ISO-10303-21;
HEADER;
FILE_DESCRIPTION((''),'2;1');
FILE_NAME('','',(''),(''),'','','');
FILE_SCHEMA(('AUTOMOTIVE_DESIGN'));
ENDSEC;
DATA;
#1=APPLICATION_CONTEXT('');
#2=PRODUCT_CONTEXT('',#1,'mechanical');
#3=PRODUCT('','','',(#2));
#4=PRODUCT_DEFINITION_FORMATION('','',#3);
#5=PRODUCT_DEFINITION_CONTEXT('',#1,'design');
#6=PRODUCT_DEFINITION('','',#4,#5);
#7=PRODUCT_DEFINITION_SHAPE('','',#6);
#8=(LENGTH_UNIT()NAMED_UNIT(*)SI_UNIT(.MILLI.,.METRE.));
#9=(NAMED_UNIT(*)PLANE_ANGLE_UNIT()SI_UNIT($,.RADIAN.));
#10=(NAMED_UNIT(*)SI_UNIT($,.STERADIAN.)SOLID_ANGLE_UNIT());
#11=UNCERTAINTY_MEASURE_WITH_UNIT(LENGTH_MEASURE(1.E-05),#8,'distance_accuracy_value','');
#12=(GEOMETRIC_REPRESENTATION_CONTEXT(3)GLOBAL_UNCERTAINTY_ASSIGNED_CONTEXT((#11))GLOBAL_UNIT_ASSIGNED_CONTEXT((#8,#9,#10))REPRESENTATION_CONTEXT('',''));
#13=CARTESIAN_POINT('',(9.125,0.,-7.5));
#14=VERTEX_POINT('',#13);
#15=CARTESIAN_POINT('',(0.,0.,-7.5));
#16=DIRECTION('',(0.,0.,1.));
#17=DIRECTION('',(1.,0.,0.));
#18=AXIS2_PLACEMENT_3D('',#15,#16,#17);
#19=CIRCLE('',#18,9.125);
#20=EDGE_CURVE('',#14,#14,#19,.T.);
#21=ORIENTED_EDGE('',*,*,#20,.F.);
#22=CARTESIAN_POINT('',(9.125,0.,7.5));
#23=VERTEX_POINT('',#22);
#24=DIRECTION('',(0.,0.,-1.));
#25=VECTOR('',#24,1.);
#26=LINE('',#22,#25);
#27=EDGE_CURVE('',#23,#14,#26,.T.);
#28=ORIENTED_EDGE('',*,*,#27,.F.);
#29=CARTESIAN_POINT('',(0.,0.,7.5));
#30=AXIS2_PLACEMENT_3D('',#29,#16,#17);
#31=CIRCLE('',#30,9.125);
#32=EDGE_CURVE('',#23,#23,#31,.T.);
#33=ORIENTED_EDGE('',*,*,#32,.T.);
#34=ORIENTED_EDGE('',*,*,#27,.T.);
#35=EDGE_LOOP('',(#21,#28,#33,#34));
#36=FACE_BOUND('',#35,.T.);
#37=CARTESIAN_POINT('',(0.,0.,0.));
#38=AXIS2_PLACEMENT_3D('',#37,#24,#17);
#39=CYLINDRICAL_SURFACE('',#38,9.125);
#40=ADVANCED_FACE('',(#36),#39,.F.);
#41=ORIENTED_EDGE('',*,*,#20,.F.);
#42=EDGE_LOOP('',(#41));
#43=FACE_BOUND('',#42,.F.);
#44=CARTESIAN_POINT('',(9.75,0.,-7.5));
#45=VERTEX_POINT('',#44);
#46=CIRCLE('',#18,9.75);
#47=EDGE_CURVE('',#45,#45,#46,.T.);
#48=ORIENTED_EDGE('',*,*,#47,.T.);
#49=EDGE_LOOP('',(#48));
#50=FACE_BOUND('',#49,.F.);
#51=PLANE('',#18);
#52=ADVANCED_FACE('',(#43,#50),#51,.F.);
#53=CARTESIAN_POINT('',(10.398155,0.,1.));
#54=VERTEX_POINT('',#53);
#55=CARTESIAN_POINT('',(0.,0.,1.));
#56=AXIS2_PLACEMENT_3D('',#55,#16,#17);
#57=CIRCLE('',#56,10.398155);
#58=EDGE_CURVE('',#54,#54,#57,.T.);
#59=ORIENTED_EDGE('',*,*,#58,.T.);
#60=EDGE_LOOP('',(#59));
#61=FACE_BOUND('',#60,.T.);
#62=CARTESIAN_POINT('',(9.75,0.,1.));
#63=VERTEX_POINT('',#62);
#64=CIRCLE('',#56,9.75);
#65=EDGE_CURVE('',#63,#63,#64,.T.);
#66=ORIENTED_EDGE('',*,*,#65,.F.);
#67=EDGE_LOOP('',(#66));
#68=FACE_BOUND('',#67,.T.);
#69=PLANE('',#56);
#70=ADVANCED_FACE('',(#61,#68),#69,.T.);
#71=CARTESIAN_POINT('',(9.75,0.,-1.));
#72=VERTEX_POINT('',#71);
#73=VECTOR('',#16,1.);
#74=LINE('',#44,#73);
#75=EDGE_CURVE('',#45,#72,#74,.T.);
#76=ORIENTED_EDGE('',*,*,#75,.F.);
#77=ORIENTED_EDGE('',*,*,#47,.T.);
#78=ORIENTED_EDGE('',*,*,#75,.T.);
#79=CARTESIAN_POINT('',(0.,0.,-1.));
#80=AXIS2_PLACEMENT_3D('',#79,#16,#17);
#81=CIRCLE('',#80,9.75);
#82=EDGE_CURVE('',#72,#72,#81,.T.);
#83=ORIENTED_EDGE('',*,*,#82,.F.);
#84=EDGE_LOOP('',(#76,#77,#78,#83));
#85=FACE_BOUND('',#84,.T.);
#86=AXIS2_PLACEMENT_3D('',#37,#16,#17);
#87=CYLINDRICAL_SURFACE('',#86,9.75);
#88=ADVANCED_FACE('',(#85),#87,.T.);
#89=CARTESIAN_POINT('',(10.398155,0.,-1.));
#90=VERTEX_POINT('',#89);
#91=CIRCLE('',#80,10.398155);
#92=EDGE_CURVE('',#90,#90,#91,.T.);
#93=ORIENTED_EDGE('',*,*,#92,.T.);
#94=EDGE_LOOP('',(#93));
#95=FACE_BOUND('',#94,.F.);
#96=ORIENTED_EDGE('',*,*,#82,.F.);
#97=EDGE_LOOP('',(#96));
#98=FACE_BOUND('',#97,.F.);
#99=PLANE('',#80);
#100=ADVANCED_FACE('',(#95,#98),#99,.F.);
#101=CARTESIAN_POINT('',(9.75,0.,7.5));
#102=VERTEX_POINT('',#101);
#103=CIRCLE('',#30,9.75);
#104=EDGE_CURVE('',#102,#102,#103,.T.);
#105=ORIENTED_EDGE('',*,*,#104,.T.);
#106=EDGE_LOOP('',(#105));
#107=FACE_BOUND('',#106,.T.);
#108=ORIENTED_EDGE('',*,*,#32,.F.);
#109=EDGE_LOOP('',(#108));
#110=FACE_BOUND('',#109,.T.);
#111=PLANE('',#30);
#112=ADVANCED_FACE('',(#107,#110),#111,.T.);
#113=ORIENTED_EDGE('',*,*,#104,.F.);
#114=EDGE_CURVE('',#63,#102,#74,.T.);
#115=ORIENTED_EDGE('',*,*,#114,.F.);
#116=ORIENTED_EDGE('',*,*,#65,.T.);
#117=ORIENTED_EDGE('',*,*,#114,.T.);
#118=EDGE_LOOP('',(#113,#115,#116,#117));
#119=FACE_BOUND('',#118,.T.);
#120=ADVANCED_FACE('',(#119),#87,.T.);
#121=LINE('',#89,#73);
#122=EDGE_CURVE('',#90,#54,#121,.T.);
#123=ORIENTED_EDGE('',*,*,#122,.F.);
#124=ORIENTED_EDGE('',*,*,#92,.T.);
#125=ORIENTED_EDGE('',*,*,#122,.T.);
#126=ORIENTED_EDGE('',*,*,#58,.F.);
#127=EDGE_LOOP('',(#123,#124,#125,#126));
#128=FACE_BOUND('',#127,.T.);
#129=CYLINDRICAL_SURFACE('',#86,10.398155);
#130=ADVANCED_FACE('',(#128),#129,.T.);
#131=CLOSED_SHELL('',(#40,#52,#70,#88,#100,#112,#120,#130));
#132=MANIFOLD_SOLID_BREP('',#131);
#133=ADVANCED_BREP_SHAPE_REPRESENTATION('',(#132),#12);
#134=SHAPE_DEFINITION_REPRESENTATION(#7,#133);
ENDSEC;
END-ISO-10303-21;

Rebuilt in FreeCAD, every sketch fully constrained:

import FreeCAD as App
import Part
import Sketcher
from FreeCAD import Vector

doc = App.newDocument("Part")
params = doc.addObject("Spreadsheet::Sheet", "Params")
for row, (alias, value) in enumerate([
    ("sketch1_diameter", "19.5 mm"),
    ("sketch1_diameter2", "18.25 mm"),
    ("pad1_length", "15 mm"),
    ("sketch2_diameter", "19.5 mm"),
    ("pad2_length", "2 mm"),
], start=1):
    params.set(f"A{row}", alias)
    params.set(f"B{row}", "=" + value)
    params.setAlias(f"B{row}", alias)

body = doc.addObject("PartDesign::Body", "Body")

# Sketch on XY plane
sketch1 = body.newObject("Sketcher::SketchObject", "Sketch")
sketch1.AttachmentSupport = (doc.getObject("XY_Plane"), [""])
sketch1.MapMode = "FlatFace"
sketch1.addGeometry(Part.Circle(Vector(0, 0, 0), Vector(0, 0, 1), 10), False)
sketch1.addGeometry(Part.Circle(Vector(0, 0, 0), Vector(0, 0, 1), 9), False)
sketch1.addConstraint(Sketcher.Constraint("Coincident", 0, 3, -1, 1))
sketch1.addConstraint(Sketcher.Constraint("Coincident", 1, 3, -1, 1))
sketch1.addConstraint(Sketcher.Constraint("Diameter", 0, 19.5))
sketch1.addConstraint(Sketcher.Constraint("Diameter", 1, 18.25))
sketch1.setExpression("Constraints[2]", "Params.sketch1_diameter")
sketch1.setExpression("Constraints[3]", "Params.sketch1_diameter2")
pad1 = body.newObject("PartDesign::Pad", "Pad")
pad1.Profile = sketch1
pad1.setExpression("Length", "Params.pad1_length")
pad1.Midplane = True

# Sketch on XY plane
sketch2 = body.newObject("Sketcher::SketchObject", "Sketch001")
sketch2.AttachmentSupport = (doc.getObject("XY_Plane"), [""])
sketch2.MapMode = "FlatFace"
sketch2.addGeometry(Part.Circle(Vector(0, 0, 0), Vector(0, 0, 1), 10), False)
sketch2.addGeometry(Part.Circle(Vector(0, 0, 0), Vector(0, 0, 1), 10), False)
sketch2.addConstraint(Sketcher.Constraint("Coincident", 0, 3, -1, 1))
sketch2.addConstraint(Sketcher.Constraint("Coincident", 1, 3, -1, 1))
sketch2.addConstraint(Sketcher.Constraint("Diameter", 1, 19.5))
sketch2.addConstraint(Sketcher.Constraint("Diameter", 0, 20.79631))
sketch2.setExpression("Constraints[2]", "Params.sketch2_diameter")
pad2 = body.newObject("PartDesign::Pad", "Pad001")
pad2.Profile = sketch2
pad2.setExpression("Length", "Params.pad2_length")
pad2.Midplane = True

doc.recompute()
